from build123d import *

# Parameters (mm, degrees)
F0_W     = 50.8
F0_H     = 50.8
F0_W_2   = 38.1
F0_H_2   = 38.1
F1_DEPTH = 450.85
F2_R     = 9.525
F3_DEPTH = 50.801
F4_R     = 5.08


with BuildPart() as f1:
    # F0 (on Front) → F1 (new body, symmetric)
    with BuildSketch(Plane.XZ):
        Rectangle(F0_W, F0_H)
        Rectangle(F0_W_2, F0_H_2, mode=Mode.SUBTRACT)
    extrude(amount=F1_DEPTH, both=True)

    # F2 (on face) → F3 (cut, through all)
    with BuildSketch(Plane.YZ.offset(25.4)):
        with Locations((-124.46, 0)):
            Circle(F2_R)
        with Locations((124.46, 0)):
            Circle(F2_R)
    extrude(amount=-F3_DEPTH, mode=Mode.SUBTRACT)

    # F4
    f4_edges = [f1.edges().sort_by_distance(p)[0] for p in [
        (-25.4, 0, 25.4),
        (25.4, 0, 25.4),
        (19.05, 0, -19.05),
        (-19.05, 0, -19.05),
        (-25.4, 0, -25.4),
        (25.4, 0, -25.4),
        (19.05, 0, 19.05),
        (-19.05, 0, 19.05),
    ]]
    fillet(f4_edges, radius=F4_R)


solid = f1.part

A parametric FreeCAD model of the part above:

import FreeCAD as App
import Part
import Sketcher
Q = App.Units.Quantity


def edges_at(feature, points):
    """Names of the edges that pass closest to the given points."""
    edges = feature.Shape.Edges
    near = lambda p: min(range(len(edges)), key=lambda i: edges[i].distToShape(Part.Vertex(*p))[0])
    return sorted({f"Edge{near(p) + 1}" for p in points})


def add_polygon(sketch, points):
    """Adds a closed chain of lines whose ends are joined by coincident constraints."""
    first, n = sketch.GeometryCount, len(points)
    for a, b in zip(points, points[1:] + points[:1]):
        sketch.addGeometry(Part.LineSegment(App.Vector(*a, 0), App.Vector(*b, 0)), False)
    for i in range(n):
        sketch.addConstraint(Sketcher.Constraint("Coincident", first + i, 2, first + (i + 1) % n, 1))

doc = App.newDocument("Part")
body = doc.addObject("PartDesign::Body", "Body")

# Sketch on XZ plane
sketch1 = body.newObject("Sketcher::SketchObject", "Sketch")
sketch1.AttachmentSupport = (doc.getObject("XZ_Plane"), [""])
sketch1.MapMode = "FlatFace"
add_polygon(sketch1, [(-25.4, 25.4), (-25.4, -25.4), (25.4, -25.4), (25.4, 25.4)])  # lines 0-3
add_polygon(sketch1, [(19.05, -19.05), (-19.05, -19.05), (-19.05, 19.05), (19.05, 19.05)])  # lines 4-7
sketch1.addConstraint([
    Sketcher.Constraint("Vertical", 0),
    Sketcher.Constraint("Horizontal", 1),
    Sketcher.Constraint("Vertical", 2),
    Sketcher.Constraint("Horizontal", 3),
    Sketcher.Constraint("Horizontal", 4),
    Sketcher.Constraint("Vertical", 5),
    Sketcher.Constraint("Horizontal", 6),
    Sketcher.Constraint("Vertical", 7),
    Sketcher.Constraint("Symmetric", 0, 2, 2, 2, -1, 1),
    Sketcher.Constraint("Symmetric", 4, 2, 6, 2, -1, 1),
    Sketcher.Constraint("Equal", 3, 0),
    Sketcher.Constraint("Equal", 6, 5),
    Sketcher.Constraint("DistanceX", 1, 1, 1, 2, Q("2 in")),
    Sketcher.Constraint("DistanceX", 4, 2, 4, 1, Q("1.5 in")),
])
pad1 = body.newObject("PartDesign::Pad", "Pad")
pad1.Profile = sketch1
pad1.Length = Q("35.5 in")
pad1.Midplane = True

# Sketch on YZ plane
sketch2 = body.newObject("Sketcher::SketchObject", "Sketch001")
sketch2.AttachmentSupport = (doc.getObject("YZ_Plane"), [""])
sketch2.MapMode = "FlatFace"
sketch2.AttachmentOffset = App.Placement(App.Vector(0, 0, 1 * 25.4), App.Rotation())
sketch2.addGeometry([
    Part.Circle(App.Vector(-124.46, 0, 0), App.Vector(0, 0, 1), 9.525),
    Part.Circle(App.Vector(124.46, 0, 0), App.Vector(0, 0, 1), 9.525),
], False)
sketch2.addConstraint([
    Sketcher.Constraint("Equal", 0, 1),
    Sketcher.Constraint("Symmetric", 0, 3, 1, 3, -1, 1),
    Sketcher.Constraint("PointOnObject", 0, 3, -1),
    Sketcher.Constraint("Diameter", 0, Q("0.75 in")),
    Sketcher.Constraint("DistanceX", 0, 3, -1, 1, Q("4.9 in")),
])
pocket1 = body.newObject("PartDesign::Pocket", "Pocket")
pocket1.Profile = sketch2
pocket1.Type = "ThroughAll"
doc.recompute()

fillet = body.newObject("PartDesign::Fillet", "Fillet")
fillet.Base = (pocket1, edges_at(pocket1, [
    (-25.4, 0, 25.4),
    (25.4, 0, 25.4),
    (19.05, 0, -19.05),
    (-19.05, 0, -19.05),
    (-25.4, 0, -25.4),
    (25.4, 0, -25.4),
    (19.05, 0, 19.05),
    (-19.05, 0, 19.05),
]))
fillet.Radius = Q("0.2 in")

doc.recompute()
